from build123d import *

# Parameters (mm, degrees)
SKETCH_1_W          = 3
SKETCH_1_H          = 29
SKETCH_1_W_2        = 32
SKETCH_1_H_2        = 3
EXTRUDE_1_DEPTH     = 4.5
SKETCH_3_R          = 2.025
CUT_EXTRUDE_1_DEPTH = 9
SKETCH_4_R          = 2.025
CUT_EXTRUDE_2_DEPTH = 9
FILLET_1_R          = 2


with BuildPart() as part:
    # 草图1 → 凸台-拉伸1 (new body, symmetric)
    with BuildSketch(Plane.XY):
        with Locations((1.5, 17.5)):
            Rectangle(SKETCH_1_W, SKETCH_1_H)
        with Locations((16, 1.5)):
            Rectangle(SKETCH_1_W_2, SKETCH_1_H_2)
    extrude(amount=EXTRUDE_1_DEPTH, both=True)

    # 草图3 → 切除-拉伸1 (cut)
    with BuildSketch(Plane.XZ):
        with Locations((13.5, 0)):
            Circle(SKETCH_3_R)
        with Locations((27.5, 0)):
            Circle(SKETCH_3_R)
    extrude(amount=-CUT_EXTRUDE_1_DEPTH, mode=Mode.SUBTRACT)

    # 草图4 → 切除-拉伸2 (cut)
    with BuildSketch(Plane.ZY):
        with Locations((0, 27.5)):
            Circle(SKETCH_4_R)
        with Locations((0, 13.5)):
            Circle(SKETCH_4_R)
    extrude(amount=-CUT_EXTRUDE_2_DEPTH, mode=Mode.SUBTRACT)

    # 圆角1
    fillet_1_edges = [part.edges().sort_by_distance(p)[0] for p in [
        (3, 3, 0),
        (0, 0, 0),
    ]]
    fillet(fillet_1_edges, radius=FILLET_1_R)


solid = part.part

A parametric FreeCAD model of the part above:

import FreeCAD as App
import Part
import Sketcher
from FreeCAD import Vector
Q = App.Units.Quantity


def edges_at(feature, points):
    """Names of the edges that pass closest to the given points."""
    edges = feature.Shape.Edges
    near = lambda p: min(range(len(edges)), key=lambda i: edges[i].distToShape(Part.Vertex(*p))[0])
    return sorted({f"Edge{near(p) + 1}" for p in points})

doc = App.newDocument("Part")
body = doc.addObject("PartDesign::Body", "Body")

# Sketch on XY plane
sketch1 = doc.addObject("Sketcher::SketchObject", "Sketch")
body.addObject(sketch1)
sketch1.AttachmentSupport = (doc.XY_Plane, [""])
sketch1.MapMode = "FlatFace"
sketch1.addGeometry([
    Part.LineSegment(Vector(0, 32, 0), Vector(0, 0, 0)),  # 0
    Part.LineSegment(Vector(0, 0, 0), Vector(32, 0, 0)),  # 1
    Part.LineSegment(Vector(32, 0, 0), Vector(32, 3, 0)),  # 2
    Part.LineSegment(Vector(32, 3, 0), Vector(3, 3, 0)),  # 3
    Part.LineSegment(Vector(3, 3, 0), Vector(3, 32, 0)),  # 4
    Part.LineSegment(Vector(3, 32, 0), Vector(0, 32, 0)),  # 5
], False)
sketch1.addConstraint([
    Sketcher.Constraint("Coincident", 0, 2, 1, 1),
    Sketcher.Constraint("Coincident", 1, 2, 2, 1),
    Sketcher.Constraint("Coincident", 2, 2, 3, 1),
    Sketcher.Constraint("Coincident", 3, 2, 4, 1),
    Sketcher.Constraint("Coincident", 4, 2, 5, 1),
    Sketcher.Constraint("Coincident", 5, 2, 0, 1),
    Sketcher.Constraint("Vertical", 0),
    Sketcher.Constraint("Horizontal", 1),
    Sketcher.Constraint("Vertical", 2),
    Sketcher.Constraint("Horizontal", 3),
    Sketcher.Constraint("Vertical", 4),
    Sketcher.Constraint("Horizontal", 5),
    Sketcher.Constraint("Coincident", 0, 2, -1, 1),
    Sketcher.Constraint("Equal", 1, 0),
    Sketcher.Constraint("Equal", 5, 2),
    Sketcher.Constraint("DistanceX", 1, 1, 1, 2, Q("32 mm")),
    Sketcher.Constraint("DistanceX", 3, 2, 3, 1, Q("29 mm")),
])
pad1 = doc.addObject("PartDesign::Pad", "Pad")
body.addObject(pad1)
pad1.Profile = sketch1
pad1.Length = 9
pad1.Midplane = True

# Sketch on XZ plane
sketch2 = doc.addObject("Sketcher::SketchObject", "Sketch001")
body.addObject(sketch2)
sketch2.AttachmentSupport = (doc.XZ_Plane, [""])
sketch2.MapMode = "FlatFace"
sketch2.addGeometry([
    Part.Circle(Vector(13.5, 0, 0), Vector(0, 0, 1), 2),
    Part.Circle(Vector(27.5, 0, 0), Vector(0, 0, 1), 2),
], False)
sketch2.addConstraint([
    Sketcher.Constraint("Equal", 0, 1),
    Sketcher.Constraint("PointOnObject", 0, 3, -1),
    Sketcher.Constraint("PointOnObject", 1, 3, -1),
    Sketcher.Constraint("Diameter", 0, Q("4.05 mm")),
    Sketcher.Constraint("DistanceX", 0, 3, 1, 3, Q("14 mm")),
    Sketcher.Constraint("DistanceX", -1, 1, 0, 3, Q("13.5 mm")),
])
pocket1 = doc.addObject("PartDesign::Pocket", "Pocket")
body.addObject(pocket1)
pocket1.Profile = sketch2
pocket1.Length = 9

# Sketch on YZ plane
sketch3 = doc.addObject("Sketcher::SketchObject", "Sketch002")
body.addObject(sketch3)
sketch3.AttachmentSupport = (doc.YZ_Plane, [""])
sketch3.MapMode = "FlatFace"
sketch3.addGeometry([
    Part.Circle(Vector(27.5, 0, 0), Vector(0, 0, 1), 2),
    Part.Circle(Vector(13.5, 0, 0), Vector(0, 0, 1), 2),
], False)
sketch3.addConstraint([
    Sketcher.Constraint("Equal", 0, 1),
    Sketcher.Constraint("PointOnObject", 0, 3, -1),
    Sketcher.Constraint("PointOnObject", 1, 3, -1),
    Sketcher.Constraint("Diameter", 0, Q("4.05 mm")),
    Sketcher.Constraint("DistanceX", 1, 3, 0, 3, Q("14 mm")),
    Sketcher.Constraint("DistanceX", -1, 1, 0, 3, Q("27.5 mm")),
])
pocket2 = doc.addObject("PartDesign::Pocket", "Pocket001")
body.addObject(pocket2)
pocket2.Profile = sketch3
pocket2.Length = 9
pocket2.Reversed = True
doc.recompute()

fillet = doc.addObject("PartDesign::Fillet", "Fillet")
body.addObject(fillet)
fillet.Base = (pocket2, edges_at(pocket2, [(3, 3, 0), (0, 0, 0)]))
fillet.Radius = 2

doc.recompute()
